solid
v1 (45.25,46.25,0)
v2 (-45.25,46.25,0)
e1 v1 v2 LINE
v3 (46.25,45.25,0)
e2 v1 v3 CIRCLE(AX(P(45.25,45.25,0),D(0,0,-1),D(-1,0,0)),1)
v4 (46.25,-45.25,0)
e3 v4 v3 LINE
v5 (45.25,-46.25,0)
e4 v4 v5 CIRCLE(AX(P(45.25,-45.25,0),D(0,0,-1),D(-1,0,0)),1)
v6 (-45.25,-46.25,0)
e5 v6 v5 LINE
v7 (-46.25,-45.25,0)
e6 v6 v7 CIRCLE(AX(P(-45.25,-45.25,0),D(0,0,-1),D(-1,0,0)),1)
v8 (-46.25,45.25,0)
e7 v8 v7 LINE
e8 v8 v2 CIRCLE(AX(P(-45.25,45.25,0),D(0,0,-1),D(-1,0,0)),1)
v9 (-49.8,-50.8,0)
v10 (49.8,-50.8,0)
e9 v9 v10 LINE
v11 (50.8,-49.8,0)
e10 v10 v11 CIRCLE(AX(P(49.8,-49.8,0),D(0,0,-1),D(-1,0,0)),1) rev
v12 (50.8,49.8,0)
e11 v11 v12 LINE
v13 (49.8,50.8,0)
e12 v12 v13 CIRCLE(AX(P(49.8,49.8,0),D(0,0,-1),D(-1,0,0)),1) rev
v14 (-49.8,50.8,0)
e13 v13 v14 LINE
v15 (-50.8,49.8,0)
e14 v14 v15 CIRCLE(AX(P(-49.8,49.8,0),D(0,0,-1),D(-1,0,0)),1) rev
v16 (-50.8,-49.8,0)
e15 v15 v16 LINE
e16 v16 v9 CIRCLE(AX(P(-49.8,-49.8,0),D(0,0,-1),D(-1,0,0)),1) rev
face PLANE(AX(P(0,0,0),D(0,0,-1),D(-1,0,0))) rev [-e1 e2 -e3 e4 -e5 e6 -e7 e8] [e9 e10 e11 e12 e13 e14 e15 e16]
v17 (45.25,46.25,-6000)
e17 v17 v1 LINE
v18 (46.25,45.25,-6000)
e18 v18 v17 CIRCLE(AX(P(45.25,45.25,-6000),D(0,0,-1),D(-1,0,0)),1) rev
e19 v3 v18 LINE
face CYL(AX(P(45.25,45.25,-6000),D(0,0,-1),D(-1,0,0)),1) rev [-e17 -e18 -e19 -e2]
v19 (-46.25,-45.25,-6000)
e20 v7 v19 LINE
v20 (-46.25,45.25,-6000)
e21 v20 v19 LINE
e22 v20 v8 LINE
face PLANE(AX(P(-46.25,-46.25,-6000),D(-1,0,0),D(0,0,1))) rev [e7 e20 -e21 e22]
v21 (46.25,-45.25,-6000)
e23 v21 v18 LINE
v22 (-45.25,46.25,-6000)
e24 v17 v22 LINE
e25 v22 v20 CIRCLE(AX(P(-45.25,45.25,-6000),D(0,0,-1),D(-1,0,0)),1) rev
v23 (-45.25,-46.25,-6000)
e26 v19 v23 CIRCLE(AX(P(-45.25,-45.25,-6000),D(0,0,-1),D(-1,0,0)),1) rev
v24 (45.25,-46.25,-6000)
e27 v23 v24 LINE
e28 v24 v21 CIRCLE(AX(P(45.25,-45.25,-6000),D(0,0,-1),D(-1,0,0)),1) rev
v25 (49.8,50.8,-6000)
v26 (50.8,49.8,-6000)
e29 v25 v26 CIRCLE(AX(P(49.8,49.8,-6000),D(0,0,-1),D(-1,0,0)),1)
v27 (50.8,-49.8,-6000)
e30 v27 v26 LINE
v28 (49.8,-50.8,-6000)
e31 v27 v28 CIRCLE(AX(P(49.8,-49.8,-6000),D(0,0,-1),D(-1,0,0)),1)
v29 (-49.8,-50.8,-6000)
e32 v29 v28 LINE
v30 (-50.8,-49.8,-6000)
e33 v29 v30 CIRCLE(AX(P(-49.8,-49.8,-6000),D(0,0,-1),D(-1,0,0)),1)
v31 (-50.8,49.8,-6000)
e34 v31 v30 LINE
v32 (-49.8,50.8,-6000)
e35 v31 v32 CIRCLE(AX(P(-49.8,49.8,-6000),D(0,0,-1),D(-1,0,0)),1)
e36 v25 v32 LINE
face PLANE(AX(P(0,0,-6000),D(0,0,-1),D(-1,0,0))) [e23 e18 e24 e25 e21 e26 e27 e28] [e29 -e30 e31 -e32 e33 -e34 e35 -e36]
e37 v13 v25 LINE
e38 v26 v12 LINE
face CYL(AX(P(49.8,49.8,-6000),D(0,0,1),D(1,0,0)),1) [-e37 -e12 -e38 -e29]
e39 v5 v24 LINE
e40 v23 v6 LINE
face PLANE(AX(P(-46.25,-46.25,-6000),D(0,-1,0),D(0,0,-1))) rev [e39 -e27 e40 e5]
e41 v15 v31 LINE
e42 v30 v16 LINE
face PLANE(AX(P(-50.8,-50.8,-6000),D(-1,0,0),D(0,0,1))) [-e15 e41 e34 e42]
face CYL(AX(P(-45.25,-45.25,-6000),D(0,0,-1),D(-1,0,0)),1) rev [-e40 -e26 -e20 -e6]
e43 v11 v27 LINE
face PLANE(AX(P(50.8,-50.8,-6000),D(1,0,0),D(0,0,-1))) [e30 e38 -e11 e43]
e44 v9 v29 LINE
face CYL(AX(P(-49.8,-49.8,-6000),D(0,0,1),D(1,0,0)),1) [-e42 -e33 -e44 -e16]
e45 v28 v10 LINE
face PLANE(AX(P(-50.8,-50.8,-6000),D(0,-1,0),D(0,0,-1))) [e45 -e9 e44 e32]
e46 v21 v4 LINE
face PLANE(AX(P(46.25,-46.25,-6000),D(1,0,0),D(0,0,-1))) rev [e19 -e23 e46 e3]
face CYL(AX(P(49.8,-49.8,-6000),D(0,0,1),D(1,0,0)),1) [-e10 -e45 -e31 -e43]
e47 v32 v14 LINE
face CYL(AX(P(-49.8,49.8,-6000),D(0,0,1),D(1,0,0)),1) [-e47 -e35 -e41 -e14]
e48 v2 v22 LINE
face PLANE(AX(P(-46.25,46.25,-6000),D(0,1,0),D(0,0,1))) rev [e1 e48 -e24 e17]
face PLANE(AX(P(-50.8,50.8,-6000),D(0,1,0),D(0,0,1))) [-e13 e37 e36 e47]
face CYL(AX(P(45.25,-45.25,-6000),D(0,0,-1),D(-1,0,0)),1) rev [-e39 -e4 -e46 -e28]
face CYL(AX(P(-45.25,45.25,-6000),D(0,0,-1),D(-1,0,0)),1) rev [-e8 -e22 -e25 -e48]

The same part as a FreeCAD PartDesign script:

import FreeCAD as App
import Part
import Sketcher

V = App.Vector
Q = App.Units.Quantity


def edges_at(feature, points):
    """Names of the edges that pass closest to the given points."""
    edges = feature.Shape.Edges
    near = lambda p: min(range(len(edges)), key=lambda i: edges[i].distToShape(Part.Vertex(*p))[0])
    return sorted({f"Edge{near(p) + 1}" for p in points})


def add_polygon(sketch, points):
    """Adds a closed chain of lines whose ends are joined by coincident constraints."""
    first, n = sketch.GeometryCount, len(points)
    for a, b in zip(points, points[1:] + points[:1]):
        sketch.addGeometry(Part.LineSegment(App.Vector(*a, 0), App.Vector(*b, 0)), False)
    for i in range(n):
        sketch.addConstraint(Sketcher.Constraint("Coincident", first + i, 2, first + (i + 1) % n, 1))

doc = App.newDocument("Part")
body = doc.addObject("PartDesign::Body", "Body")

# Sketch on XY plane
sketch1 = doc.addObject("Sketcher::SketchObject", "Sketch")
body.addObject(sketch1)
sketch1.AttachmentSupport = (doc.XY_Plane, [""])
sketch1.MapMode = "FlatFace"
add_polygon(sketch1, [(-51, 51), (-51, -51), (51, -51), (51, 51)])  # lines 0-3
add_polygon(sketch1, [(46, -46), (-46, -46), (-46, 46), (46, 46)])  # lines 4-7
sketch1.addConstraint([
    Sketcher.Constraint("Vertical", 0),
    Sketcher.Constraint("Horizontal", 1),
    Sketcher.Constraint("Vertical", 2),
    Sketcher.Constraint("Horizontal", 3),
    Sketcher.Constraint("Horizontal", 4),
    Sketcher.Constraint("Vertical", 5),
    Sketcher.Constraint("Horizontal", 6),
    Sketcher.Constraint("Vertical", 7),
    Sketcher.Constraint("Symmetric", 0, 2, 2, 2, -1, 1),
    Sketcher.Constraint("Symmetric", 4, 2, 6, 2, -1, 1),
    Sketcher.Constraint("Equal", 3, 0),
    Sketcher.Constraint("Equal", 6, 5),
    Sketcher.Constraint("DistanceX", 1, 1, 1, 2, Q("101.6 mm")),
    Sketcher.Constraint("DistanceX", 4, 2, 4, 1, Q("92.5 mm")),
])
pad1 = doc.addObject("PartDesign::Pad", "Pad")
body.addObject(pad1)
pad1.Profile = sketch1
pad1.Length = 6000
pad1.Reversed = True
doc.recompute()

fillet = doc.addObject("PartDesign::Fillet", "Fillet")
body.addObject(fillet)
fillet.Base = (pad1, edges_at(pad1, [
    (46.25, -46.25, -3000),
    (-46.25, -46.25, -3000),
    (-46.25, 46.25, -3000),
    (46.25, 46.25, -3000),
    (50.8, -50.8, -3000),
    (-50.8, -50.8, -3000),
    (-50.8, 50.8, -3000),
    (50.8, 50.8, -3000),
]))
fillet.Radius = 1

doc.recompute()
